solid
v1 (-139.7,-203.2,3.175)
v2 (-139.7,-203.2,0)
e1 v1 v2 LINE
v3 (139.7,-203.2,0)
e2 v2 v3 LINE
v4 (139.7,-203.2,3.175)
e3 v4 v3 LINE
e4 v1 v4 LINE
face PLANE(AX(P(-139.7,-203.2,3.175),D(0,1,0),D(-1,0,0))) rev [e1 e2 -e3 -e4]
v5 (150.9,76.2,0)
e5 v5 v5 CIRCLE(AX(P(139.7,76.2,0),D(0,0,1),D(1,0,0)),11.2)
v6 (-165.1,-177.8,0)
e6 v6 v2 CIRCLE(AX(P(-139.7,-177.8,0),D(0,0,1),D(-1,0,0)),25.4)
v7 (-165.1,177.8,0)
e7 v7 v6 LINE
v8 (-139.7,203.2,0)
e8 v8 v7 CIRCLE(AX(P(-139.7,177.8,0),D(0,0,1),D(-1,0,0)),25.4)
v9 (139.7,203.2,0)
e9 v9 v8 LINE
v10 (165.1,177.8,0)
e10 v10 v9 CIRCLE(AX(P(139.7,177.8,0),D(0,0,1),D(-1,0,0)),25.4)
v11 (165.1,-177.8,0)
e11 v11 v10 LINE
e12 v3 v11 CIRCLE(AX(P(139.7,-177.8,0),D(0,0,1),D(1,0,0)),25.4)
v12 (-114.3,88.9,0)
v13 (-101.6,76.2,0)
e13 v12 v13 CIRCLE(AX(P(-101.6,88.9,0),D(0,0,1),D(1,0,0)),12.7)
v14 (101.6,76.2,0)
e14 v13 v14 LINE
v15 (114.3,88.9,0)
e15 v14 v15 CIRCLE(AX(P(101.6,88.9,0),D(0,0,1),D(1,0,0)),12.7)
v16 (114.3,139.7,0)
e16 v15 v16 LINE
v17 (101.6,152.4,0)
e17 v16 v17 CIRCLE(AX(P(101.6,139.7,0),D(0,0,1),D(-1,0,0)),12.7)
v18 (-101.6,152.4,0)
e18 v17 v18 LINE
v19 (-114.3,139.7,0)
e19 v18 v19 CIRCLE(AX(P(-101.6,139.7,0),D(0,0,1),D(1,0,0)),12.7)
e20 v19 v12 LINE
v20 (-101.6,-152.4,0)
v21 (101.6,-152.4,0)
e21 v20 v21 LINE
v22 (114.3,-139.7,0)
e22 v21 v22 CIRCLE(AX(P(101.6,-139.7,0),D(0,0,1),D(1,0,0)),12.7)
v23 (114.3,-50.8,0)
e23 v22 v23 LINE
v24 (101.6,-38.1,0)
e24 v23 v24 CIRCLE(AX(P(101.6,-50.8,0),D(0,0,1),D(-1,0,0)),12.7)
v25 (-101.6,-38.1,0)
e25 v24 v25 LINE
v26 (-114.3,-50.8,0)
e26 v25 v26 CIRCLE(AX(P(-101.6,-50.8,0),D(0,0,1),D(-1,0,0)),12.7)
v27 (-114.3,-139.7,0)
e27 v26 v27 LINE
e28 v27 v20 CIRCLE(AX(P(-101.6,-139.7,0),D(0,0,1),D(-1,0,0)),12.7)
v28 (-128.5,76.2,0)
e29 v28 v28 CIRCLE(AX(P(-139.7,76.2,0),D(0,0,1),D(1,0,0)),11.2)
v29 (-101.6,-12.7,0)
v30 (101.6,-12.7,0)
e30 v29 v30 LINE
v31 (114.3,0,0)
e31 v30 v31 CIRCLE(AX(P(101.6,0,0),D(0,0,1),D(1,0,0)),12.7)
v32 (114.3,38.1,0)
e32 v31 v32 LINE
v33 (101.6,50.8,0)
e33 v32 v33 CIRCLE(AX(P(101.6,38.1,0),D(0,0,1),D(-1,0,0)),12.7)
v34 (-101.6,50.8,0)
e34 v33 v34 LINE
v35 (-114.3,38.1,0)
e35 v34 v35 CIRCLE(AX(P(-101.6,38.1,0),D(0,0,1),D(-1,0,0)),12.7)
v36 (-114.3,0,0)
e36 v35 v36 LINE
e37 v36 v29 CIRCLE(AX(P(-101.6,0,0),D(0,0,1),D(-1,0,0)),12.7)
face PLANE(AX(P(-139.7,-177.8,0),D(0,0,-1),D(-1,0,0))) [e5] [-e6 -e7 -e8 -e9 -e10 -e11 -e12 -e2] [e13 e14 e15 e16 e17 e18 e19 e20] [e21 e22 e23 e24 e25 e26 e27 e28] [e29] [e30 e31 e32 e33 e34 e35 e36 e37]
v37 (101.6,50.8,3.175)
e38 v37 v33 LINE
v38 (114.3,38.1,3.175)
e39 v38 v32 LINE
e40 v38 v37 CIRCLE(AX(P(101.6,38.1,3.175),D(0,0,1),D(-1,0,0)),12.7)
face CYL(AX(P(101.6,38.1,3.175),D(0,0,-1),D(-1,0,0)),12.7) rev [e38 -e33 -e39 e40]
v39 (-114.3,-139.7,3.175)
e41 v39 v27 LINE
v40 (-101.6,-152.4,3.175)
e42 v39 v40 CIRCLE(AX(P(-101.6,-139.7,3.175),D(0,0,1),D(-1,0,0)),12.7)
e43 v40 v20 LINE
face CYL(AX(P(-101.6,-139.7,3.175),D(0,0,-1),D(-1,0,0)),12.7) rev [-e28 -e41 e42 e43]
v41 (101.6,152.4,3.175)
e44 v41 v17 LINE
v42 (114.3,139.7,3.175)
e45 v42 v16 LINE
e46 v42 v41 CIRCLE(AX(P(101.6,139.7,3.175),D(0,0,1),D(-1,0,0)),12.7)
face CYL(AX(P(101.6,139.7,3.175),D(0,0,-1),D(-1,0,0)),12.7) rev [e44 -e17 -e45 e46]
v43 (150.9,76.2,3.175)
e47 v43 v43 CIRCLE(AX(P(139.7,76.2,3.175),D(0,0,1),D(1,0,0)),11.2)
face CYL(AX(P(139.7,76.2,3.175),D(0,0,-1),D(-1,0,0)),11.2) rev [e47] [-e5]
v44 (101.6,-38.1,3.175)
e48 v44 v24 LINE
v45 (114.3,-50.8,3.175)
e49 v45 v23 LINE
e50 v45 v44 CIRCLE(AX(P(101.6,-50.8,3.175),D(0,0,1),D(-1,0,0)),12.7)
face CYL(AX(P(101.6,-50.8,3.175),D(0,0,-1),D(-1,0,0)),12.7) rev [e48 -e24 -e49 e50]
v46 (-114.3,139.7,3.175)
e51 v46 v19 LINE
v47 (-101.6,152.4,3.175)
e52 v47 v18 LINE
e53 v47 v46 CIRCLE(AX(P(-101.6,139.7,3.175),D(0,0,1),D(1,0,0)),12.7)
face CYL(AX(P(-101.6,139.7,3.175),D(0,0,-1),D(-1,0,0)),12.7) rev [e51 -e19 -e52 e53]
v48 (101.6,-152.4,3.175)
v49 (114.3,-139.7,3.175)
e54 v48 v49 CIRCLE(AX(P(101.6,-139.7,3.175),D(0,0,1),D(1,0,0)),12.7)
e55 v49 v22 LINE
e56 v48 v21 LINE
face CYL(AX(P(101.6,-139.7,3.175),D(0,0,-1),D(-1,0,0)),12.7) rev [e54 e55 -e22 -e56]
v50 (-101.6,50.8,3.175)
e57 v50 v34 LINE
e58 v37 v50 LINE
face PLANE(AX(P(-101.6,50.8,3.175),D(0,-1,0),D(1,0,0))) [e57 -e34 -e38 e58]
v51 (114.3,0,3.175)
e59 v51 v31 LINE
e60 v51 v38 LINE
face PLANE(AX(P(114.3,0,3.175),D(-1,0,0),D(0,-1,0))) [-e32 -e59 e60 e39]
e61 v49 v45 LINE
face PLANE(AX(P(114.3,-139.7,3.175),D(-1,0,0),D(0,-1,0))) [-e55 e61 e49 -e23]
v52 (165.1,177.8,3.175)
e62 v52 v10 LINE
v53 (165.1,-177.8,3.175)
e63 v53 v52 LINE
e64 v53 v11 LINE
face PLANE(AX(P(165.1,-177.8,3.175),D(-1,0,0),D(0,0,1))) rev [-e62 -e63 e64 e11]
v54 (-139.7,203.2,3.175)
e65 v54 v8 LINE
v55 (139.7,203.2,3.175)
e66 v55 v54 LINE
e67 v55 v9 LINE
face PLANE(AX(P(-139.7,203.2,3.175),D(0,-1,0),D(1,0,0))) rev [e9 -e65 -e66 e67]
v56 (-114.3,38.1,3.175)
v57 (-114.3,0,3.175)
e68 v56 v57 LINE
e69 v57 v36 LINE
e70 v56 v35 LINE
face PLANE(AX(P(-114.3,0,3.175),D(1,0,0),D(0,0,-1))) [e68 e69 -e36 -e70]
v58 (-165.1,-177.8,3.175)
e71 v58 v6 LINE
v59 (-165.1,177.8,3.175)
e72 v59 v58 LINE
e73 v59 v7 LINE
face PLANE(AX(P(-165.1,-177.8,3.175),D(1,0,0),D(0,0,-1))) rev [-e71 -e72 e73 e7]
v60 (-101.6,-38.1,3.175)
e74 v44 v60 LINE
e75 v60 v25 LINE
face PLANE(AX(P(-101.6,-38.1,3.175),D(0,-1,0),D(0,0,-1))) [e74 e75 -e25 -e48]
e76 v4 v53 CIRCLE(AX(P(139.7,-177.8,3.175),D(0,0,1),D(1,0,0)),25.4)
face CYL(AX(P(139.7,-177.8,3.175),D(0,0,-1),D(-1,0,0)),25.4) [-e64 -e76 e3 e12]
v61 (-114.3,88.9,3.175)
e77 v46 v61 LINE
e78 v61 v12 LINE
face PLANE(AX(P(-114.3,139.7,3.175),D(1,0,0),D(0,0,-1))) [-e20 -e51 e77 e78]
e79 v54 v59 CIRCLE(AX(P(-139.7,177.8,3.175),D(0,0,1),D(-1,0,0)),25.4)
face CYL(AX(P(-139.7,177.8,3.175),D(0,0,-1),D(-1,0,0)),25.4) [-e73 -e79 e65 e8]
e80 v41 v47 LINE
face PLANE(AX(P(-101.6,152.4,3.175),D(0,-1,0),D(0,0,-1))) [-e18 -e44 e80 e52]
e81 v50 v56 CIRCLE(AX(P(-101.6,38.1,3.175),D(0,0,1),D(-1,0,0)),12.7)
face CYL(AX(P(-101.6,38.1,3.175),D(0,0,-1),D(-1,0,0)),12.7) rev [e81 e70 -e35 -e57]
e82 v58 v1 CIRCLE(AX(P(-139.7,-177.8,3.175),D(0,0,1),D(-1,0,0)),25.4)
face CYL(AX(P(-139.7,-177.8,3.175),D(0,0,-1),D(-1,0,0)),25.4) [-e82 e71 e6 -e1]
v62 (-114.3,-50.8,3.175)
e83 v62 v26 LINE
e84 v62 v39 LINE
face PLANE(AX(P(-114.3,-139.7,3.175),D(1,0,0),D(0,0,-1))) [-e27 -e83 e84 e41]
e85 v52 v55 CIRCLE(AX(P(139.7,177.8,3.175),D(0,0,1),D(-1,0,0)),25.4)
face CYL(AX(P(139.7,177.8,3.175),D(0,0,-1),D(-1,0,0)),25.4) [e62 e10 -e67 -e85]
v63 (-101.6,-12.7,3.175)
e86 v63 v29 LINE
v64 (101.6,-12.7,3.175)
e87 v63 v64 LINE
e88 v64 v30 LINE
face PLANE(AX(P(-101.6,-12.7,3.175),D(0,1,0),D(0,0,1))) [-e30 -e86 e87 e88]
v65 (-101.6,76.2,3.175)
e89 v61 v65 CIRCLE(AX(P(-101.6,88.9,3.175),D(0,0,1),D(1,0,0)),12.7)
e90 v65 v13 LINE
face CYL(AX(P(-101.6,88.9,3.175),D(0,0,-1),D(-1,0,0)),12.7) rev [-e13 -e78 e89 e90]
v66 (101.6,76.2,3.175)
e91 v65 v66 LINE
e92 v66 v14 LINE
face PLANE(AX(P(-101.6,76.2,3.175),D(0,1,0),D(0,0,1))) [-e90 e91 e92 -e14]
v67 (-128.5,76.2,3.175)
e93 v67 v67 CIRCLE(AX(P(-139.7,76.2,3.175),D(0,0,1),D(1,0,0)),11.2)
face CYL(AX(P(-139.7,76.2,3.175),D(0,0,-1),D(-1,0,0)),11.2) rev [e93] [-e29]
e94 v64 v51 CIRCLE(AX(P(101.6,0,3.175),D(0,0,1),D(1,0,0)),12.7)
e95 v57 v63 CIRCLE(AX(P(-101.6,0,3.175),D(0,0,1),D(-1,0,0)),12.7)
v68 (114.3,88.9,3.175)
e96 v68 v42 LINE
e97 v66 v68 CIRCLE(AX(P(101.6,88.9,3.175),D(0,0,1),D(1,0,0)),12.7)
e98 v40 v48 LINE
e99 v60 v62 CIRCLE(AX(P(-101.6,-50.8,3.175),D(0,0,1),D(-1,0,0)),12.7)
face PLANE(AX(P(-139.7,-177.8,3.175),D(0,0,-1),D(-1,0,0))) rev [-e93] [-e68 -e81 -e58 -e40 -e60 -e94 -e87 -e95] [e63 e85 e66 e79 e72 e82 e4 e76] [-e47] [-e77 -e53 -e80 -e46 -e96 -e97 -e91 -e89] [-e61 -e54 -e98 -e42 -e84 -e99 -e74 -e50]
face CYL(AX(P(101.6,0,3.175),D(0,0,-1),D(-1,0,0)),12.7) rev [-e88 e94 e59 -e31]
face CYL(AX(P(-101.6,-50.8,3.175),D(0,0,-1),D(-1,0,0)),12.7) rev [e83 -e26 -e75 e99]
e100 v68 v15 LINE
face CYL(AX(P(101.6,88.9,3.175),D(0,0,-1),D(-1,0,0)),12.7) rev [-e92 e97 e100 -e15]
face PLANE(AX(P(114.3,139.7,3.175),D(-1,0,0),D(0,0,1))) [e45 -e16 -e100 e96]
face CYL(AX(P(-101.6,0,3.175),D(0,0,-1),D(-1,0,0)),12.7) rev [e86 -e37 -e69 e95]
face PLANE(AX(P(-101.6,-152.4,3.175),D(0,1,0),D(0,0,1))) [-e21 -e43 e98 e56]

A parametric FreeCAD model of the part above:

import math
import FreeCAD as App
import Part
import Sketcher
from FreeCAD import Vector
Q = App.Units.Quantity

doc = App.newDocument("Part")
body = doc.addObject("PartDesign::Body", "Body")

sketch1 = body.newObject("Sketcher::SketchObject", "Sketch")
sketch1.AttachmentSupport = (doc.getObject("XY_Plane"), [""])
sketch1.MapMode = "FlatFace"
sketch1.addGeometry(Part.LineSegment(Vector(-139.7, -203.2, 0), Vector(139.7, -203.2, 0)), False)
sketch1.addGeometry(Part.ArcOfCircle(Part.Circle(Vector(139.7, -177.8, 0), Vector(0, 0, 1), 25.4), math.radians(-90), math.radians(0)), False)
sketch1.addGeometry(Part.LineSegment(Vector(165.1, -177.8, 0), Vector(165.1, 177.8, 0)), False)
sketch1.addGeometry(Part.ArcOfCircle(Part.Circle(Vector(139.7, 177.8, 0), Vector(0, 0, 1), 25.4), math.radians(0), math.radians(90)), False)
sketch1.addGeometry(Part.LineSegment(Vector(139.7, 203.2, 0), Vector(-139.7, 203.2, 0)), False)
sketch1.addGeometry(Part.ArcOfCircle(Part.Circle(Vector(-139.7, 177.8, 0), Vector(0, 0, 1), 25.4), math.radians(90), math.radians(180)), False)
sketch1.addGeometry(Part.LineSegment(Vector(-165.1, 177.8, 0), Vector(-165.1, -177.8, 0)), False)
sketch1.addGeometry(Part.ArcOfCircle(Part.Circle(Vector(-139.7, -177.8, 0), Vector(0, 0, 1), 25.4), math.radians(180), math.radians(270)), False)
sketch1.addGeometry(Part.LineSegment(Vector(101.6, -152.4, 0), Vector(-101.6, -152.4, 0)), False)
sketch1.addGeometry(Part.ArcOfCircle(Part.Circle(Vector(-101.6, -139.7, 0), Vector(0, 0, 1), 12.7), math.radians(180), math.radians(270)), False)
sketch1.addGeometry(Part.LineSegment(Vector(-114.3, -139.7, 0), Vector(-114.3, -50.8, 0)), False)
sketch1.addGeometry(Part.ArcOfCircle(Part.Circle(Vector(-101.6, -50.8, 0), Vector(0, 0, 1), 12.7), math.radians(90), math.radians(180)), False)
sketch1.addGeometry(Part.LineSegment(Vector(-101.6, -38.1, 0), Vector(101.6, -38.1, 0)), False)
sketch1.addGeometry(Part.ArcOfCircle(Part.Circle(Vector(101.6, -50.8, 0), Vector(0, 0, 1), 12.7), math.radians(0), math.radians(90)), False)
sketch1.addGeometry(Part.LineSegment(Vector(114.3, -50.8, 0), Vector(114.3, -139.7, 0)), False)
sketch1.addGeometry(Part.ArcOfCircle(Part.Circle(Vector(101.6, -139.7, 0), Vector(0, 0, 1), 12.7), math.radians(-90), math.radians(0)), False)
sketch1.addGeometry(Part.Circle(Vector(-139.7, 76.2, 0), Vector(0, 0, 1), 11.2), False)
sketch1.addGeometry(Part.LineSegment(Vector(101.6, -12.7, 0), Vector(-101.6, -12.7, 0)), False)
sketch1.addGeometry(Part.ArcOfCircle(Part.Circle(Vector(-101.6, 0, 0), Vector(0, 0, 1), 12.7), math.radians(180), math.radians(270)), False)
sketch1.addGeometry(Part.LineSegment(Vector(-114.3, 0, 0), Vector(-114.3, 38.1, 0)), False)
sketch1.addGeometry(Part.ArcOfCircle(Part.Circle(Vector(-101.6, 38.1, 0), Vector(0, 0, 1), 12.7), math.radians(90), math.radians(180)), False)
sketch1.addGeometry(Part.LineSegment(Vector(-101.6, 50.8, 0), Vector(101.6, 50.8, 0)), False)
sketch1.addGeometry(Part.ArcOfCircle(Part.Circle(Vector(101.6, 38.1, 0), Vector(0, 0, 1), 12.7), math.radians(0), math.radians(90)), False)
sketch1.addGeometry(Part.LineSegment(Vector(114.3, 38.1, 0), Vector(114.3, 0, 0)), False)
sketch1.addGeometry(Part.ArcOfCircle(Part.Circle(Vector(101.6, 0, 0), Vector(0, 0, 1), 12.7), math.radians(-90), math.radians(0)), False)
sketch1.addGeometry(Part.ArcOfCircle(Part.Circle(Vector(-101.6, 139.7, 0), Vector(0, 0, 1), 12.7), math.radians(90), math.radians(180)), False)
sketch1.addGeometry(Part.LineSegment(Vector(-101.6, 152.4, 0), Vector(101.6, 152.4, 0)), False)
sketch1.addGeometry(Part.ArcOfCircle(Part.Circle(Vector(101.6, 139.7, 0), Vector(0, 0, 1), 12.7), math.radians(0), math.radians(90)), False)
sketch1.addGeometry(Part.LineSegment(Vector(114.3, 139.7, 0), Vector(114.3, 88.9, 0)), False)
sketch1.addGeometry(Part.ArcOfCircle(Part.Circle(Vector(101.6, 88.9, 0), Vector(0, 0, 1), 12.7), math.radians(-90), math.radians(0)), False)
sketch1.addGeometry(Part.LineSegment(Vector(101.6, 76.2, 0), Vector(-101.6, 76.2, 0)), False)
sketch1.addGeometry(Part.ArcOfCircle(Part.Circle(Vector(-101.6, 88.9, 0), Vector(0, 0, 1), 12.7), math.radians(180), math.radians(270)), False)
sketch1.addGeometry(Part.LineSegment(Vector(-114.3, 88.9, 0), Vector(-114.3, 139.7, 0)), False)
sketch1.addGeometry(Part.Circle(Vector(139.7, 76.2, 0), Vector(0, 0, 1), 11.2), False)
sketch1.addConstraint(Sketcher.Constraint("Tangent", 0, 2, 1, 1))
sketch1.addConstraint(Sketcher.Constraint("Tangent", 1, 2, 2, 1))
sketch1.addConstraint(Sketcher.Constraint("Tangent", 2, 2, 3, 1))
sketch1.addConstraint(Sketcher.Constraint("Tangent", 3, 2, 4, 1))
sketch1.addConstraint(Sketcher.Constraint("Tangent", 4, 2, 5, 1))
sketch1.addConstraint(Sketcher.Constraint("Tangent", 5, 2, 6, 1))
sketch1.addConstraint(Sketcher.Constraint("Tangent", 6, 2, 7, 1))
sketch1.addConstraint(Sketcher.Constraint("Tangent", 7, 2, 0, 1))
sketch1.addConstraint(Sketcher.Constraint("Tangent", 8, 2, 9, 2))
sketch1.addConstraint(Sketcher.Constraint("Tangent", 9, 1, 10, 1))
sketch1.addConstraint(Sketcher.Constraint("Tangent", 10, 2, 11, 2))
sketch1.addConstraint(Sketcher.Constraint("Tangent", 11, 1, 12, 1))
sketch1.addConstraint(Sketcher.Constraint("Tangent", 12, 2, 13, 2))
sketch1.addConstraint(Sketcher.Constraint("Tangent", 13, 1, 14, 1))
sketch1.addConstraint(Sketcher.Constraint("Tangent", 14, 2, 15, 2))
sketch1.addConstraint(Sketcher.Constraint("Tangent", 15, 1, 8, 1))
sketch1.addConstraint(Sketcher.Constraint("Tangent", 17, 2, 18, 2))
sketch1.addConstraint(Sketcher.Constraint("Tangent", 18, 1, 19, 1))
sketch1.addConstraint(Sketcher.Constraint("Tangent", 19, 2, 20, 2))
sketch1.addConstraint(Sketcher.Constraint("Tangent", 20, 1, 21, 1))
sketch1.addConstraint(Sketcher.Constraint("Tangent", 21, 2, 22, 2))
sketch1.addConstraint(Sketcher.Constraint("Tangent", 22, 1, 23, 1))
sketch1.addConstraint(Sketcher.Constraint("Tangent", 23, 2, 24, 2))
sketch1.addConstraint(Sketcher.Constraint("Tangent", 24, 1, 17, 1))
sketch1.addConstraint(Sketcher.Constraint("Tangent", 25, 1, 26, 1))
sketch1.addConstraint(Sketcher.Constraint("Tangent", 26, 2, 27, 2))
sketch1.addConstraint(Sketcher.Constraint("Tangent", 27, 1, 28, 1))
sketch1.addConstraint(Sketcher.Constraint("Tangent", 28, 2, 29, 2))
sketch1.addConstraint(Sketcher.Constraint("Tangent", 29, 1, 30, 1))
sketch1.addConstraint(Sketcher.Constraint("Tangent", 30, 2, 31, 2))
sketch1.addConstraint(Sketcher.Constraint("Tangent", 31, 1, 32, 1))
sketch1.addConstraint(Sketcher.Constraint("Tangent", 32, 2, 25, 2))
sketch1.addConstraint(Sketcher.Constraint("Horizontal", 0))
sketch1.addConstraint(Sketcher.Constraint("Vertical", 2))
sketch1.addConstraint(Sketcher.Constraint("Horizontal", 4))
sketch1.addConstraint(Sketcher.Constraint("Vertical", 6))
sketch1.addConstraint(Sketcher.Constraint("Horizontal", 8))
sketch1.addConstraint(Sketcher.Constraint("Vertical", 10))
sketch1.addConstraint(Sketcher.Constraint("Horizontal", 12))
sketch1.addConstraint(Sketcher.Constraint("Vertical", 14))
sketch1.addConstraint(Sketcher.Constraint("Horizontal", 17))
sketch1.addConstraint(Sketcher.Constraint("Vertical", 19))
sketch1.addConstraint(Sketcher.Constraint("Horizontal", 21))
sketch1.addConstraint(Sketcher.Constraint("Vertical", 23))
sketch1.addConstraint(Sketcher.Constraint("Horizontal", 26))
sketch1.addConstraint(Sketcher.Constraint("Vertical", 28))
sketch1.addConstraint(Sketcher.Constraint("Horizontal", 30))
sketch1.addConstraint(Sketcher.Constraint("Vertical", 32))
sketch1.addConstraint(Sketcher.Constraint("Equal", 1, 3))
sketch1.addConstraint(Sketcher.Constraint("Equal", 3, 5))
sketch1.addConstraint(Sketcher.Constraint("Equal", 5, 7))
sketch1.addConstraint(Sketcher.Constraint("Equal", 9, 11))
sketch1.addConstraint(Sketcher.Constraint("Equal", 11, 13))
sketch1.addConstraint(Sketcher.Constraint("Equal", 13, 15))
sketch1.addConstraint(Sketcher.Constraint("Equal", 15, 18))
sketch1.addConstraint(Sketcher.Constraint("Equal", 18, 20))
sketch1.addConstraint(Sketcher.Constraint("Equal", 20, 22))
sketch1.addConstraint(Sketcher.Constraint("Equal", 22, 24))
sketch1.addConstraint(Sketcher.Constraint("Equal", 24, 25))
sketch1.addConstraint(Sketcher.Constraint("Equal", 25, 27))
sketch1.addConstraint(Sketcher.Constraint("Equal", 27, 29))
sketch1.addConstraint(Sketcher.Constraint("Equal", 29, 31))
sketch1.addConstraint(Sketcher.Constraint("Equal", 16, 33))
sketch1.addConstraint(Sketcher.Constraint("Symmetric", 1, 3, 5, 3, -1, 1))
sketch1.addConstraint(Sketcher.Constraint("Symmetric", 18, 3, 24, 3, -1, 1))
sketch1.addConstraint(Sketcher.Constraint("Symmetric", 15, 3, 25, 3, -1, 1))
sketch1.addConstraint(Sketcher.Constraint("Symmetric", 16, 3, 33, 3, -2))
sketch1.addConstraint(Sketcher.Constraint("Horizontal", 33, 3, 29, 1))
sketch1.addConstraint(Sketcher.Constraint("Vertical", 7, 3, 16, 3))
sketch1.addConstraint(Sketcher.Constraint("Vertical", 11, 3, 18, 3))
sketch1.addConstraint(Sketcher.Constraint("Vertical", 15, 3, 22, 3))
sketch1.addConstraint(Sketcher.Constraint("Vertical", 24, 3, 27, 3))
sketch1.addConstraint(Sketcher.Constraint("Radius", 1, Q("1 in")))
sketch1.addConstraint(Sketcher.Constraint("Radius", 9, Q("0.5 in")))
sketch1.addConstraint(Sketcher.Constraint("DistanceX", 0, 1, 0, 2, Q("11 in")))
sketch1.addConstraint(Sketcher.Constraint("DistanceX", 8, 2, 8, 1, Q("8 in")))
sketch1.addConstraint(Sketcher.Constraint("DistanceY", 2, 1, 2, 2, Q("14 in")))
sketch1.addConstraint(Sketcher.Constraint("DistanceY", 28, 2, 28, 1, Q("2 in")))
sketch1.addConstraint(Sketcher.Constraint("DistanceY", 10, 1, 10, 2, Q("3.5 in")))
sketch1.addConstraint(Sketcher.Constraint("DistanceY", 19, 1, 19, 2, Q("1.5 in")))
sketch1.addConstraint(Sketcher.Constraint("DistanceY", 11, 3, -1, 1, Q("2 in")))
sketch1.addConstraint(Sketcher.Constraint("Diameter", 16, 22.4))
pad1 = body.newObject("PartDesign::Pad", "Pad")
pad1.Profile = sketch1
pad1.Length = Q("0.125 in")

doc.recompute()
